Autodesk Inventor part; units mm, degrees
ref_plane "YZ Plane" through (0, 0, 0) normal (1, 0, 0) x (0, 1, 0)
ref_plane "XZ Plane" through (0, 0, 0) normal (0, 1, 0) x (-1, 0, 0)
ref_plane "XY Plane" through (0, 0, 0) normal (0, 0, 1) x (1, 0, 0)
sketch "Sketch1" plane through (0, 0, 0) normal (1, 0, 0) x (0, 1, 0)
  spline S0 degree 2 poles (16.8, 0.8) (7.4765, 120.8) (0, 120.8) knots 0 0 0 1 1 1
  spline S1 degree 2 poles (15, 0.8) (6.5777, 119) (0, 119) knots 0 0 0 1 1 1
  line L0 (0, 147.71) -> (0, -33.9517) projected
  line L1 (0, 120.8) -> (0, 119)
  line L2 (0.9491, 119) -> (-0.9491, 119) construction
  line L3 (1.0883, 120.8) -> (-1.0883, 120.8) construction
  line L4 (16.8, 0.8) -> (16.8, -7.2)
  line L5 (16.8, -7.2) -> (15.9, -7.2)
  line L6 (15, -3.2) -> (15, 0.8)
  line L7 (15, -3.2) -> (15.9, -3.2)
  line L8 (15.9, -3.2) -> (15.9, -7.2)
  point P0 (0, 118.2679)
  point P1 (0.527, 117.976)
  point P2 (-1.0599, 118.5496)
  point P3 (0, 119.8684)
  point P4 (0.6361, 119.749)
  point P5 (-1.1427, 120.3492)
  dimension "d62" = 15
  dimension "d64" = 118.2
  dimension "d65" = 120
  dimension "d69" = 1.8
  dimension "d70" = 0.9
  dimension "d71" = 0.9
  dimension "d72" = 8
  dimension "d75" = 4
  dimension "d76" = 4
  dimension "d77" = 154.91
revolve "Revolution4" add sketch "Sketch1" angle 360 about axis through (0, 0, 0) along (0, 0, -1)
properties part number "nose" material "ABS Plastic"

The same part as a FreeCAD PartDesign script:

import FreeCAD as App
import Part
import Sketcher
Q = App.Units.Quantity

doc = App.newDocument("Part")
body = doc.addObject("PartDesign::Body", "Body")

# Sketch on YZ plane
sketch1 = body.newObject("Sketcher::SketchObject", "Sketch")
sketch1.AttachmentSupport = (doc.getObject("YZ_Plane"), [""])
sketch1.MapMode = "FlatFace"
sketch1.addGeometry([
    Part.LineSegment(App.Vector(16.8, -7.2, 0), App.Vector(16.8, 0.8, 0)),  # 0
    Part.BSplineCurve([App.Vector(16.8, 0.8, 0), App.Vector(7.4765, 120.8, 0), App.Vector(0, 120.8, 0)], [3, 3], [0, 1], False, 2, [1, 1, 1], False),  # 1
    Part.LineSegment(App.Vector(0, 120.8, 0), App.Vector(0, 119, 0)),  # 2
    Part.BSplineCurve([App.Vector(15, 0.8, 0), App.Vector(6.5777, 119, 0), App.Vector(0, 119, 0)], [3, 3], [0, 1], False, 2, [1, 1, 1], False),  # 3
    Part.LineSegment(App.Vector(15, 0.8, 0), App.Vector(15, -3.2, 0)),  # 4
    Part.LineSegment(App.Vector(15, -3.2, 0), App.Vector(15.9, -3.2, 0)),  # 5
    Part.LineSegment(App.Vector(15.9, -3.2, 0), App.Vector(15.9, -7.2, 0)),  # 6
    Part.LineSegment(App.Vector(15.9, -7.2, 0), App.Vector(16.8, -7.2, 0)),  # 7
], False)
sketch1.addConstraint([
    Sketcher.Constraint("Block", 1),
    Sketcher.Constraint("Block", 3),
    Sketcher.Constraint("Coincident", 0, 2, 1, 1),
    Sketcher.Constraint("Coincident", 1, 2, 2, 1),
    Sketcher.Constraint("Coincident", 2, 2, 3, 2),
    Sketcher.Constraint("Coincident", 3, 1, 4, 1),
    Sketcher.Constraint("Coincident", 4, 2, 5, 1),
    Sketcher.Constraint("Coincident", 5, 2, 6, 1),
    Sketcher.Constraint("Coincident", 6, 2, 7, 1),
    Sketcher.Constraint("Coincident", 7, 2, 0, 1),
    Sketcher.Constraint("Vertical", 0),
    Sketcher.Constraint("Vertical", 4),
    Sketcher.Constraint("Horizontal", 5),
    Sketcher.Constraint("Vertical", 6),
    Sketcher.Constraint("Horizontal", 7),
    Sketcher.Constraint("DistanceY", 0, 1, 0, 2, Q("8 mm")),
    Sketcher.Constraint("DistanceY", 4, 2, 4, 1, Q("4 mm")),
    Sketcher.Constraint("DistanceX", 5, 1, 5, 2, Q("0.9 mm")),
])
revolution = body.newObject("PartDesign::Revolution", "Revolution")
revolution.Profile = sketch1
revolution.ReferenceAxis = (sketch1, ["V_Axis"])
revolution.Angle = 360

doc.recompute()
